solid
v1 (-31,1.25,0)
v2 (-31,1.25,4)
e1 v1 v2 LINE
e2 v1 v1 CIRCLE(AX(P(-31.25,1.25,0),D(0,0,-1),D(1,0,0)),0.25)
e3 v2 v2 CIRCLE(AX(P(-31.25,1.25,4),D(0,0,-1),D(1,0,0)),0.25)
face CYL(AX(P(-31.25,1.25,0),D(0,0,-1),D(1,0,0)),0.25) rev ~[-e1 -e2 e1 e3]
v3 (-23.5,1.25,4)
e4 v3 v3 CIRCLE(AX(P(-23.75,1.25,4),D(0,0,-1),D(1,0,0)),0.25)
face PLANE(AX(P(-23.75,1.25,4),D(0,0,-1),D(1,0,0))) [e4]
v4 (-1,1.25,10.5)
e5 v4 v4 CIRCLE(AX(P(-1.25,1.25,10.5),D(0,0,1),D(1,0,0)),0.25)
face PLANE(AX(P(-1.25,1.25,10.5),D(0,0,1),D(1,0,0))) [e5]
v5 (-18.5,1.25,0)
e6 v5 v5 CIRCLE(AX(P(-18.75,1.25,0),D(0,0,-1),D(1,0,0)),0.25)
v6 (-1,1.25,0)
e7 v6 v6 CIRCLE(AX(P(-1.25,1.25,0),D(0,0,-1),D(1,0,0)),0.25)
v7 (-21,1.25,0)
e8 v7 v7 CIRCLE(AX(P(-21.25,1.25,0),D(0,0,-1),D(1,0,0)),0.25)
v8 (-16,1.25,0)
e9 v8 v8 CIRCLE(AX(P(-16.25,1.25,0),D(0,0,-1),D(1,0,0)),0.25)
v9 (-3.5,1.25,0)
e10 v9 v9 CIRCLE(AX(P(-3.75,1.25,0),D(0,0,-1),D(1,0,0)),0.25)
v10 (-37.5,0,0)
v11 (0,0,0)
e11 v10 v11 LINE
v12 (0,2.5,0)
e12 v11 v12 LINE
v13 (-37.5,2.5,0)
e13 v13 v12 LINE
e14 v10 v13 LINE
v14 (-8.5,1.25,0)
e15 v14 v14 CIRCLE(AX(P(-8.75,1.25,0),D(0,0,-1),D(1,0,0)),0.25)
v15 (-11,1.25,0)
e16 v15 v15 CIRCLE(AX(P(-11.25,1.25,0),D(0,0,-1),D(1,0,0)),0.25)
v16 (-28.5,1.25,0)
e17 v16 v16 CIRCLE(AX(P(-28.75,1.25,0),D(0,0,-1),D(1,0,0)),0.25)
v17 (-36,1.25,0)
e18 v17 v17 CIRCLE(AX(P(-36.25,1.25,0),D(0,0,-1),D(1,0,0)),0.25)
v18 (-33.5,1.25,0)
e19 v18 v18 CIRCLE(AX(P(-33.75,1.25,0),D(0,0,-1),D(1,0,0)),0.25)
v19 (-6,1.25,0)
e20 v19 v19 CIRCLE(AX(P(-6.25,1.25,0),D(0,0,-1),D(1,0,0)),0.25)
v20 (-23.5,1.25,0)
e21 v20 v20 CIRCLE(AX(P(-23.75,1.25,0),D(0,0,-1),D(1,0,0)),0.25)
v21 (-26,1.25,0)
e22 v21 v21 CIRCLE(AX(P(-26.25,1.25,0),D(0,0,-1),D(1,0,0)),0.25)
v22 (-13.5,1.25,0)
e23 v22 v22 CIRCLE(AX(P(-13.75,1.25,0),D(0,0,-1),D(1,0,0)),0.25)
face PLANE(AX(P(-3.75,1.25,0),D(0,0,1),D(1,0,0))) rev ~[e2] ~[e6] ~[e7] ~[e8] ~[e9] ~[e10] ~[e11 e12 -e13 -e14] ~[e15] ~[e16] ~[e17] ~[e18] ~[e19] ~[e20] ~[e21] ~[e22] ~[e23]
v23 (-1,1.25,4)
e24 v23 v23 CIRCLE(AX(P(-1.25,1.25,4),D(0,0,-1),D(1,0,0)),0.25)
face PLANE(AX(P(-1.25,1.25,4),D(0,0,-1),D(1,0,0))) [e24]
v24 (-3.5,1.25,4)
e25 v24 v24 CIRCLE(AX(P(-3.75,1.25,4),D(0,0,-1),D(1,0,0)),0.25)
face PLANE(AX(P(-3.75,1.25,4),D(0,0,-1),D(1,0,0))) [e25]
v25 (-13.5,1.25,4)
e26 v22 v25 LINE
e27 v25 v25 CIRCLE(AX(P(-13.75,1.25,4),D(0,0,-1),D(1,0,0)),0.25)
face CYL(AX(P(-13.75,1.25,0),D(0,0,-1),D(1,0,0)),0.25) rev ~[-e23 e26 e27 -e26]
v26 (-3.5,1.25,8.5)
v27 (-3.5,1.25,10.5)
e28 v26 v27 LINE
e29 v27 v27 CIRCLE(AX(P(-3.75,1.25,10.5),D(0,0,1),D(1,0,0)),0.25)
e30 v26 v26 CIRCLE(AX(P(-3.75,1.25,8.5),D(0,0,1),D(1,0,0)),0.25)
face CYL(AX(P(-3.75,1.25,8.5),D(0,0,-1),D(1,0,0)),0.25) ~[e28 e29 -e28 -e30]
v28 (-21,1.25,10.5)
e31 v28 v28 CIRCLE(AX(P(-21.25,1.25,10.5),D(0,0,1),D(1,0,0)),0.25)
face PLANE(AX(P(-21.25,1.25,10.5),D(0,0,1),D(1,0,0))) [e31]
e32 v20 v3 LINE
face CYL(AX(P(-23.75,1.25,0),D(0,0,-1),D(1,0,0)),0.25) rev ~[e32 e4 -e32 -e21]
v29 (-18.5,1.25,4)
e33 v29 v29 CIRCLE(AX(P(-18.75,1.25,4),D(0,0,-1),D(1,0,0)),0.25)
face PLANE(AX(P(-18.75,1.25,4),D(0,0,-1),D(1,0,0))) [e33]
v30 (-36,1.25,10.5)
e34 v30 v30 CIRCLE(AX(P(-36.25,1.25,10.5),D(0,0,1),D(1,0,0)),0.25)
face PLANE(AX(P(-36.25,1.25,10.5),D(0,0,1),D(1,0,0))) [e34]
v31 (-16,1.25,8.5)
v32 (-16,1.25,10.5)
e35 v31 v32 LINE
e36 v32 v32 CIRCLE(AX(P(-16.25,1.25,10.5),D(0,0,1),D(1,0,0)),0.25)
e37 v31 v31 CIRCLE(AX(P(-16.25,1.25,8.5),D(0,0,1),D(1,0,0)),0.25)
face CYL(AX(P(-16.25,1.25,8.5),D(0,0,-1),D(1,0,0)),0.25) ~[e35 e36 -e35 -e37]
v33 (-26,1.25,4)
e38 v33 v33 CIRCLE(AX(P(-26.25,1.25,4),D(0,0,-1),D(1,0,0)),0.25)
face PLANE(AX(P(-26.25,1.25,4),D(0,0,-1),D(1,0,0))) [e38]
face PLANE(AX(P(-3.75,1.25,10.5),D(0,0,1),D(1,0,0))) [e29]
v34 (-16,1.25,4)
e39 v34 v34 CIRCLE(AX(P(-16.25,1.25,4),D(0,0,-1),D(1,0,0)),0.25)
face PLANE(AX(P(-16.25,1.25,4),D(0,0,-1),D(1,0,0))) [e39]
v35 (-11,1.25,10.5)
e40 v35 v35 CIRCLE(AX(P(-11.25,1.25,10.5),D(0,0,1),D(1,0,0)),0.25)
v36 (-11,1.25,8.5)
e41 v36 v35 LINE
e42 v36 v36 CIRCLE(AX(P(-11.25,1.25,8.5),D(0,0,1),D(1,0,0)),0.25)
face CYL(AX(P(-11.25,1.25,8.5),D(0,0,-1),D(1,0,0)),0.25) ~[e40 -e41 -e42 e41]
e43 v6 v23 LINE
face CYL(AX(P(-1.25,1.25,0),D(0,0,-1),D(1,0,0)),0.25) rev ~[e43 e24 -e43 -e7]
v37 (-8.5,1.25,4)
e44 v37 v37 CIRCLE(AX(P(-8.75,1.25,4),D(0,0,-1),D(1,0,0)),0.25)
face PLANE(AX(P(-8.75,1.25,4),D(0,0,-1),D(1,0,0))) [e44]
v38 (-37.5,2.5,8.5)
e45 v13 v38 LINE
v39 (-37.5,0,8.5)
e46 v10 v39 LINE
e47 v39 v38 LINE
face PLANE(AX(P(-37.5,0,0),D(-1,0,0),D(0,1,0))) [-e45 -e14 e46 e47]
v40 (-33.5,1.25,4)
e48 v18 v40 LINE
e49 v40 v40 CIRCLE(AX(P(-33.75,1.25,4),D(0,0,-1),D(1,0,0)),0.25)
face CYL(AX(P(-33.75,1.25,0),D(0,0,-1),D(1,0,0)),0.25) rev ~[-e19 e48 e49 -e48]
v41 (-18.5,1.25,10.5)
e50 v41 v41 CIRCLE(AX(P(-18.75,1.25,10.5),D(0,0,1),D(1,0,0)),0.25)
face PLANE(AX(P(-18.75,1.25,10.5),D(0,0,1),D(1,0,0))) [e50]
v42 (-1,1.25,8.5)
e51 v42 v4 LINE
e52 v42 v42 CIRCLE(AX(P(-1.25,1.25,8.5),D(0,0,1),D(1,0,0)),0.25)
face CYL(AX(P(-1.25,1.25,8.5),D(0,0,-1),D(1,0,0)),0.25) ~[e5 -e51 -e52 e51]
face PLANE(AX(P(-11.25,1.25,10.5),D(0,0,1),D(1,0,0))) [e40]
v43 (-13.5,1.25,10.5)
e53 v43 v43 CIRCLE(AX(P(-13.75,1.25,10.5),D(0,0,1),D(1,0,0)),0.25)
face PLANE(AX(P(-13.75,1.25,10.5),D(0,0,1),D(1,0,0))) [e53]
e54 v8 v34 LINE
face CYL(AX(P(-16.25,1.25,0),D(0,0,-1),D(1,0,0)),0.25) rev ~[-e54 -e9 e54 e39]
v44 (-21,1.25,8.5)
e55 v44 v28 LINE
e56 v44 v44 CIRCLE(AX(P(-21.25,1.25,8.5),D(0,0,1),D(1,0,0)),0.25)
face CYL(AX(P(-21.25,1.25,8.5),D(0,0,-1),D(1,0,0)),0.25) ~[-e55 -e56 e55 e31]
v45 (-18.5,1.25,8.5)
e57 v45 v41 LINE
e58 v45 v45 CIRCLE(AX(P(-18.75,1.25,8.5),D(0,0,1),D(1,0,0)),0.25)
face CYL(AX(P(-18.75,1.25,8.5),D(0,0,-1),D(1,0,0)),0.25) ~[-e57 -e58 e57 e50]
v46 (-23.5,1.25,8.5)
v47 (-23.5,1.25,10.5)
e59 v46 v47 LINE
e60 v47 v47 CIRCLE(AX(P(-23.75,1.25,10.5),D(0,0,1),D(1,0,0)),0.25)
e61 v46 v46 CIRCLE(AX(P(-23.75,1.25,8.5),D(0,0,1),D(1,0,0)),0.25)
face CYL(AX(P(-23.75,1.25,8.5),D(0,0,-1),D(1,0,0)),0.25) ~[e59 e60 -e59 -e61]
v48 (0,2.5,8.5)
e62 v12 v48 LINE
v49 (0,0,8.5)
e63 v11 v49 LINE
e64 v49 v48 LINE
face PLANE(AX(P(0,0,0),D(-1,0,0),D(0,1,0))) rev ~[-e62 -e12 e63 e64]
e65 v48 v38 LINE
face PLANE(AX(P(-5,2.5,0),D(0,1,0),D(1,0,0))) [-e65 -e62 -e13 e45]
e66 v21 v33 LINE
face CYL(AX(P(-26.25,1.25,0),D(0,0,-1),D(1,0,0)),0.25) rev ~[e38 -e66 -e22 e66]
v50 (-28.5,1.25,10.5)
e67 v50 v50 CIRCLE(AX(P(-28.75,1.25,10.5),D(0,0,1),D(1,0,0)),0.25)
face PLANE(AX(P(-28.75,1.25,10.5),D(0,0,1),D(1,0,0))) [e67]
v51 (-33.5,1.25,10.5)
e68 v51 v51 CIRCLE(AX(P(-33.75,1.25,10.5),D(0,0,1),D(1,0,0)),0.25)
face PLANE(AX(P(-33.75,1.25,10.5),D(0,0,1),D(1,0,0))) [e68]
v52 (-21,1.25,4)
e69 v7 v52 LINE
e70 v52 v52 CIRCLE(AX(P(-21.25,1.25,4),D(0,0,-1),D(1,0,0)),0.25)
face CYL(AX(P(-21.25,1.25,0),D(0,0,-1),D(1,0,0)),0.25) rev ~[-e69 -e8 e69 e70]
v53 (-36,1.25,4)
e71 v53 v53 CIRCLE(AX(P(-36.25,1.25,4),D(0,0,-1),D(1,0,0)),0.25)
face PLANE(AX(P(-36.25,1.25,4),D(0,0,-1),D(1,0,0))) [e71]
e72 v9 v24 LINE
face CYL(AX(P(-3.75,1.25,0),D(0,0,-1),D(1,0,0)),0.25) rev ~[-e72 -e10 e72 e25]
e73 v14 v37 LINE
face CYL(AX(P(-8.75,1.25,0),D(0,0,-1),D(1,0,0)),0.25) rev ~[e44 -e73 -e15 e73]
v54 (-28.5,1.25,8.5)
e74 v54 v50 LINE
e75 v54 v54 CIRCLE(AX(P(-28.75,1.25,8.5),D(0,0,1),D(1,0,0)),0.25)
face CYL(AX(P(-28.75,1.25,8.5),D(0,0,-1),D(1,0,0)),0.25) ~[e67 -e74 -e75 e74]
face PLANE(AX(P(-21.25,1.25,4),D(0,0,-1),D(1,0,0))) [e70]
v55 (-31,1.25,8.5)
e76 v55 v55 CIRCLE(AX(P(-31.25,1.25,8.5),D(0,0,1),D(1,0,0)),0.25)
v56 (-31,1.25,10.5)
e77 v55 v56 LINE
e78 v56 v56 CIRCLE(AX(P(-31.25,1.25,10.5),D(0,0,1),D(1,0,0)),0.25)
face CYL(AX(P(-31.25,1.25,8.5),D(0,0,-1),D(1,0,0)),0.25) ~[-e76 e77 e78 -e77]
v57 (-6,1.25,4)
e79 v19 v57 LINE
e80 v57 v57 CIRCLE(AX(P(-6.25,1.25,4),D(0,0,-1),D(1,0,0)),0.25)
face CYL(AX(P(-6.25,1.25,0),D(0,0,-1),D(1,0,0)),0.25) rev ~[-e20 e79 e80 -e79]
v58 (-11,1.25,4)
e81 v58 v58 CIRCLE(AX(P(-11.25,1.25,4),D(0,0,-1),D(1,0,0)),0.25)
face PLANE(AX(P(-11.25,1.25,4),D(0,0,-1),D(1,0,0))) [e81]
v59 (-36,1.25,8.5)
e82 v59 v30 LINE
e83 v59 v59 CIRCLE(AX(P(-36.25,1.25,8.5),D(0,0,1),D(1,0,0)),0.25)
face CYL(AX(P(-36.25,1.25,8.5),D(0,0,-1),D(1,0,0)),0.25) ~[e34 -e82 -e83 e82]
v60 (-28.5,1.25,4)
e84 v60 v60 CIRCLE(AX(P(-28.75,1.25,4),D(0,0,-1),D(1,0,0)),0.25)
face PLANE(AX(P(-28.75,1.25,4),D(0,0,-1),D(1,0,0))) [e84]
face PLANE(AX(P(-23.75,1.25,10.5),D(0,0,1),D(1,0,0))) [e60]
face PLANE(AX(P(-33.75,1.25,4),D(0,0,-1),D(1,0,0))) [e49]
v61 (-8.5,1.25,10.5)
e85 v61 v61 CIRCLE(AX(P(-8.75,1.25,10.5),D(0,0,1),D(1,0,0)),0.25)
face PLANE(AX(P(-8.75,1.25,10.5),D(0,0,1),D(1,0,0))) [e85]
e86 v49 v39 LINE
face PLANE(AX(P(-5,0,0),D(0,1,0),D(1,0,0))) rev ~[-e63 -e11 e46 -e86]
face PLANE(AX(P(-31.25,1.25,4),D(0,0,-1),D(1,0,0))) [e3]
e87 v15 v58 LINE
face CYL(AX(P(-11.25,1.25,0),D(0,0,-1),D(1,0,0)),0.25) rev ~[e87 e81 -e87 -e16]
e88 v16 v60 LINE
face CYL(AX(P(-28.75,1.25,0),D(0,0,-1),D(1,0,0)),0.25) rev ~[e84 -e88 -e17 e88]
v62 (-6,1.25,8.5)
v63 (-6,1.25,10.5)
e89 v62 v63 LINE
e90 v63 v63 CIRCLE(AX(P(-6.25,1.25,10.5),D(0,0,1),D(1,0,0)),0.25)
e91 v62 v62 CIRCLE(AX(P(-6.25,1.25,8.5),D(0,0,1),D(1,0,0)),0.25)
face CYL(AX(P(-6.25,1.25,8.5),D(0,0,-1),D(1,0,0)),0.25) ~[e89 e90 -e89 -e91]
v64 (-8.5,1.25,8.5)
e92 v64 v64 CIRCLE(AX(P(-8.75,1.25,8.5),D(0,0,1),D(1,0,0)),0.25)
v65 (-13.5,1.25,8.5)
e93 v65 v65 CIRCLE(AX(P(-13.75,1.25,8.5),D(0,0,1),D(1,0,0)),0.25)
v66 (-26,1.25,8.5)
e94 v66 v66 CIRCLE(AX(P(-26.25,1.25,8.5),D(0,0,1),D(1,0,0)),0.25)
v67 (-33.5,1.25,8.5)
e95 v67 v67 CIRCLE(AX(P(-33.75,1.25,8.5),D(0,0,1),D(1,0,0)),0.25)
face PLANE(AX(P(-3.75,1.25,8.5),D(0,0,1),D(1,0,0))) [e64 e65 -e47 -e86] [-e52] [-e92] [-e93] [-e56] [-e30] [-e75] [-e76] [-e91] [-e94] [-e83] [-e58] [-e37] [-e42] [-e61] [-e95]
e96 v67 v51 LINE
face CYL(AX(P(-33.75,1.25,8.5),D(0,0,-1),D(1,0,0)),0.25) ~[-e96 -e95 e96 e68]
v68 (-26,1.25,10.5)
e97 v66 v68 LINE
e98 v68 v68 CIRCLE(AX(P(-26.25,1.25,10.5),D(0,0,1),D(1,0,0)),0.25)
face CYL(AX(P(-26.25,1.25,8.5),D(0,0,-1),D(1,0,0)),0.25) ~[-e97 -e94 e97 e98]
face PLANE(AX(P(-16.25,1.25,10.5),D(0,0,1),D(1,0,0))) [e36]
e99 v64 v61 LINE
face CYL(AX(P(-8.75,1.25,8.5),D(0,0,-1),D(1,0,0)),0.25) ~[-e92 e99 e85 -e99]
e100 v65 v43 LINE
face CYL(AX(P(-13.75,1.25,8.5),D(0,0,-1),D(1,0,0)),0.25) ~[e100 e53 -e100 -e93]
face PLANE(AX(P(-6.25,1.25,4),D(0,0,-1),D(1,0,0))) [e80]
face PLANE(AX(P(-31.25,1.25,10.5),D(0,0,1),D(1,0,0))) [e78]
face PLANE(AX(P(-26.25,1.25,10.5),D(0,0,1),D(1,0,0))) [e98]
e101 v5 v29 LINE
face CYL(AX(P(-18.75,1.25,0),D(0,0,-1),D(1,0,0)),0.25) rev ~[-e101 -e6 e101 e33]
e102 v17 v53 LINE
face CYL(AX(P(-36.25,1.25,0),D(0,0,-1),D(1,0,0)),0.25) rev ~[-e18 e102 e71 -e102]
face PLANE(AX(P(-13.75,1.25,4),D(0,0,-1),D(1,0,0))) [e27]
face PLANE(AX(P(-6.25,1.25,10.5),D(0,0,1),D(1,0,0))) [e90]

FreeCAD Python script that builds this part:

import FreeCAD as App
import Part
import Sketcher
Q = App.Units.Quantity

doc = App.newDocument("Part")
body = doc.addObject("PartDesign::Body", "Body")

sketch1 = body.newObject("Sketcher::SketchObject", "Sketch")
sketch1.AttachmentSupport = (doc.getObject("XY_Plane"), [""])
sketch1.MapMode = "FlatFace"
sketch1.addGeometry(Part.LineSegment(App.Vector(-2.5, 2.5, 0), App.Vector(-2.5, 0, 0)), False)
sketch1.addGeometry(Part.LineSegment(App.Vector(-2.5, 0, 0), App.Vector(0, 0, 0)), False)
sketch1.addGeometry(Part.LineSegment(App.Vector(0, 0, 0), App.Vector(0, 2.5, 0)), False)
sketch1.addGeometry(Part.LineSegment(App.Vector(0, 2.5, 0), App.Vector(-2.5, 2.5, 0)), False)
sketch1.addConstraint(Sketcher.Constraint("Coincident", 0, 2, 1, 1))
sketch1.addConstraint(Sketcher.Constraint("Coincident", 1, 2, 2, 1))
sketch1.addConstraint(Sketcher.Constraint("Coincident", 2, 2, 3, 1))
sketch1.addConstraint(Sketcher.Constraint("Coincident", 3, 2, 0, 1))
sketch1.addConstraint(Sketcher.Constraint("Vertical", 0))
sketch1.addConstraint(Sketcher.Constraint("Horizontal", 1))
sketch1.addConstraint(Sketcher.Constraint("Vertical", 2))
sketch1.addConstraint(Sketcher.Constraint("Horizontal", 3))
sketch1.addConstraint(Sketcher.Constraint("Coincident", 1, 2, -1, 1))
sketch1.addConstraint(Sketcher.Constraint("Equal", 3, 0))
sketch1.addConstraint(Sketcher.Constraint("DistanceX", 1, 1, 1, 2, Q("2.5 mm")))
pad1 = body.newObject("PartDesign::Pad", "Pad")
pad1.Profile = sketch1
pad1.Length = 8.5

sketch2 = body.newObject("Sketcher::SketchObject", "Sketch001")
sketch2.AttachmentSupport = (doc.getObject("XY_Plane"), [""])
sketch2.MapMode = "FlatFace"
sketch2.AttachmentOffset = App.Placement(App.Vector(0, 0, 8.5), App.Rotation())
sketch2.addGeometry(Part.Circle(App.Vector(-1.25, 1.25, 0), App.Vector(0, 0, 1), 0.25), False)
sketch2.addConstraint(Sketcher.Constraint("Diameter", 0, Q("0.5 mm")))
sketch2.addConstraint(Sketcher.Constraint("DistanceX", 0, 3, -1, 1, Q("1.25 mm")))
sketch2.addConstraint(Sketcher.Constraint("DistanceY", -1, 1, 0, 3, Q("1.25 mm")))
pad2 = body.newObject("PartDesign::Pad", "Pad001")
pad2.Profile = sketch2
pad2.Length = 2

sketch3 = body.newObject("Sketcher::SketchObject", "Sketch002")
sketch3.AttachmentSupport = (doc.getObject("XY_Plane"), [""])
sketch3.MapMode = "FlatFace"
sketch3.addGeometry(Part.Circle(App.Vector(-1.25, 1.25, 0), App.Vector(0, 0, 1), 0.25), False)
sketch3.addConstraint(Sketcher.Constraint("Diameter", 0, Q("0.5 mm")))
sketch3.addConstraint(Sketcher.Constraint("DistanceX", 0, 3, -1, 1, Q("1.25 mm")))
sketch3.addConstraint(Sketcher.Constraint("DistanceY", -1, 1, 0, 3, Q("1.25 mm")))
pocket1 = body.newObject("PartDesign::Pocket", "Pocket")
pocket1.Profile = sketch3
pocket1.Length = 4
pocket1.Reversed = True
doc.recompute()

linearpattern = body.newObject("PartDesign::LinearPattern", "LinearPattern")
linearpattern.Originals = [pad1, pad2, pocket1]
linearpattern.Direction = (doc.getObject("X_Axis"), [""])
linearpattern.Mode = "offset"
linearpattern.Offset = 2.5
linearpattern.Occurrences = 15
linearpattern.Reversed = True
body.Tip = linearpattern

doc.recompute()
